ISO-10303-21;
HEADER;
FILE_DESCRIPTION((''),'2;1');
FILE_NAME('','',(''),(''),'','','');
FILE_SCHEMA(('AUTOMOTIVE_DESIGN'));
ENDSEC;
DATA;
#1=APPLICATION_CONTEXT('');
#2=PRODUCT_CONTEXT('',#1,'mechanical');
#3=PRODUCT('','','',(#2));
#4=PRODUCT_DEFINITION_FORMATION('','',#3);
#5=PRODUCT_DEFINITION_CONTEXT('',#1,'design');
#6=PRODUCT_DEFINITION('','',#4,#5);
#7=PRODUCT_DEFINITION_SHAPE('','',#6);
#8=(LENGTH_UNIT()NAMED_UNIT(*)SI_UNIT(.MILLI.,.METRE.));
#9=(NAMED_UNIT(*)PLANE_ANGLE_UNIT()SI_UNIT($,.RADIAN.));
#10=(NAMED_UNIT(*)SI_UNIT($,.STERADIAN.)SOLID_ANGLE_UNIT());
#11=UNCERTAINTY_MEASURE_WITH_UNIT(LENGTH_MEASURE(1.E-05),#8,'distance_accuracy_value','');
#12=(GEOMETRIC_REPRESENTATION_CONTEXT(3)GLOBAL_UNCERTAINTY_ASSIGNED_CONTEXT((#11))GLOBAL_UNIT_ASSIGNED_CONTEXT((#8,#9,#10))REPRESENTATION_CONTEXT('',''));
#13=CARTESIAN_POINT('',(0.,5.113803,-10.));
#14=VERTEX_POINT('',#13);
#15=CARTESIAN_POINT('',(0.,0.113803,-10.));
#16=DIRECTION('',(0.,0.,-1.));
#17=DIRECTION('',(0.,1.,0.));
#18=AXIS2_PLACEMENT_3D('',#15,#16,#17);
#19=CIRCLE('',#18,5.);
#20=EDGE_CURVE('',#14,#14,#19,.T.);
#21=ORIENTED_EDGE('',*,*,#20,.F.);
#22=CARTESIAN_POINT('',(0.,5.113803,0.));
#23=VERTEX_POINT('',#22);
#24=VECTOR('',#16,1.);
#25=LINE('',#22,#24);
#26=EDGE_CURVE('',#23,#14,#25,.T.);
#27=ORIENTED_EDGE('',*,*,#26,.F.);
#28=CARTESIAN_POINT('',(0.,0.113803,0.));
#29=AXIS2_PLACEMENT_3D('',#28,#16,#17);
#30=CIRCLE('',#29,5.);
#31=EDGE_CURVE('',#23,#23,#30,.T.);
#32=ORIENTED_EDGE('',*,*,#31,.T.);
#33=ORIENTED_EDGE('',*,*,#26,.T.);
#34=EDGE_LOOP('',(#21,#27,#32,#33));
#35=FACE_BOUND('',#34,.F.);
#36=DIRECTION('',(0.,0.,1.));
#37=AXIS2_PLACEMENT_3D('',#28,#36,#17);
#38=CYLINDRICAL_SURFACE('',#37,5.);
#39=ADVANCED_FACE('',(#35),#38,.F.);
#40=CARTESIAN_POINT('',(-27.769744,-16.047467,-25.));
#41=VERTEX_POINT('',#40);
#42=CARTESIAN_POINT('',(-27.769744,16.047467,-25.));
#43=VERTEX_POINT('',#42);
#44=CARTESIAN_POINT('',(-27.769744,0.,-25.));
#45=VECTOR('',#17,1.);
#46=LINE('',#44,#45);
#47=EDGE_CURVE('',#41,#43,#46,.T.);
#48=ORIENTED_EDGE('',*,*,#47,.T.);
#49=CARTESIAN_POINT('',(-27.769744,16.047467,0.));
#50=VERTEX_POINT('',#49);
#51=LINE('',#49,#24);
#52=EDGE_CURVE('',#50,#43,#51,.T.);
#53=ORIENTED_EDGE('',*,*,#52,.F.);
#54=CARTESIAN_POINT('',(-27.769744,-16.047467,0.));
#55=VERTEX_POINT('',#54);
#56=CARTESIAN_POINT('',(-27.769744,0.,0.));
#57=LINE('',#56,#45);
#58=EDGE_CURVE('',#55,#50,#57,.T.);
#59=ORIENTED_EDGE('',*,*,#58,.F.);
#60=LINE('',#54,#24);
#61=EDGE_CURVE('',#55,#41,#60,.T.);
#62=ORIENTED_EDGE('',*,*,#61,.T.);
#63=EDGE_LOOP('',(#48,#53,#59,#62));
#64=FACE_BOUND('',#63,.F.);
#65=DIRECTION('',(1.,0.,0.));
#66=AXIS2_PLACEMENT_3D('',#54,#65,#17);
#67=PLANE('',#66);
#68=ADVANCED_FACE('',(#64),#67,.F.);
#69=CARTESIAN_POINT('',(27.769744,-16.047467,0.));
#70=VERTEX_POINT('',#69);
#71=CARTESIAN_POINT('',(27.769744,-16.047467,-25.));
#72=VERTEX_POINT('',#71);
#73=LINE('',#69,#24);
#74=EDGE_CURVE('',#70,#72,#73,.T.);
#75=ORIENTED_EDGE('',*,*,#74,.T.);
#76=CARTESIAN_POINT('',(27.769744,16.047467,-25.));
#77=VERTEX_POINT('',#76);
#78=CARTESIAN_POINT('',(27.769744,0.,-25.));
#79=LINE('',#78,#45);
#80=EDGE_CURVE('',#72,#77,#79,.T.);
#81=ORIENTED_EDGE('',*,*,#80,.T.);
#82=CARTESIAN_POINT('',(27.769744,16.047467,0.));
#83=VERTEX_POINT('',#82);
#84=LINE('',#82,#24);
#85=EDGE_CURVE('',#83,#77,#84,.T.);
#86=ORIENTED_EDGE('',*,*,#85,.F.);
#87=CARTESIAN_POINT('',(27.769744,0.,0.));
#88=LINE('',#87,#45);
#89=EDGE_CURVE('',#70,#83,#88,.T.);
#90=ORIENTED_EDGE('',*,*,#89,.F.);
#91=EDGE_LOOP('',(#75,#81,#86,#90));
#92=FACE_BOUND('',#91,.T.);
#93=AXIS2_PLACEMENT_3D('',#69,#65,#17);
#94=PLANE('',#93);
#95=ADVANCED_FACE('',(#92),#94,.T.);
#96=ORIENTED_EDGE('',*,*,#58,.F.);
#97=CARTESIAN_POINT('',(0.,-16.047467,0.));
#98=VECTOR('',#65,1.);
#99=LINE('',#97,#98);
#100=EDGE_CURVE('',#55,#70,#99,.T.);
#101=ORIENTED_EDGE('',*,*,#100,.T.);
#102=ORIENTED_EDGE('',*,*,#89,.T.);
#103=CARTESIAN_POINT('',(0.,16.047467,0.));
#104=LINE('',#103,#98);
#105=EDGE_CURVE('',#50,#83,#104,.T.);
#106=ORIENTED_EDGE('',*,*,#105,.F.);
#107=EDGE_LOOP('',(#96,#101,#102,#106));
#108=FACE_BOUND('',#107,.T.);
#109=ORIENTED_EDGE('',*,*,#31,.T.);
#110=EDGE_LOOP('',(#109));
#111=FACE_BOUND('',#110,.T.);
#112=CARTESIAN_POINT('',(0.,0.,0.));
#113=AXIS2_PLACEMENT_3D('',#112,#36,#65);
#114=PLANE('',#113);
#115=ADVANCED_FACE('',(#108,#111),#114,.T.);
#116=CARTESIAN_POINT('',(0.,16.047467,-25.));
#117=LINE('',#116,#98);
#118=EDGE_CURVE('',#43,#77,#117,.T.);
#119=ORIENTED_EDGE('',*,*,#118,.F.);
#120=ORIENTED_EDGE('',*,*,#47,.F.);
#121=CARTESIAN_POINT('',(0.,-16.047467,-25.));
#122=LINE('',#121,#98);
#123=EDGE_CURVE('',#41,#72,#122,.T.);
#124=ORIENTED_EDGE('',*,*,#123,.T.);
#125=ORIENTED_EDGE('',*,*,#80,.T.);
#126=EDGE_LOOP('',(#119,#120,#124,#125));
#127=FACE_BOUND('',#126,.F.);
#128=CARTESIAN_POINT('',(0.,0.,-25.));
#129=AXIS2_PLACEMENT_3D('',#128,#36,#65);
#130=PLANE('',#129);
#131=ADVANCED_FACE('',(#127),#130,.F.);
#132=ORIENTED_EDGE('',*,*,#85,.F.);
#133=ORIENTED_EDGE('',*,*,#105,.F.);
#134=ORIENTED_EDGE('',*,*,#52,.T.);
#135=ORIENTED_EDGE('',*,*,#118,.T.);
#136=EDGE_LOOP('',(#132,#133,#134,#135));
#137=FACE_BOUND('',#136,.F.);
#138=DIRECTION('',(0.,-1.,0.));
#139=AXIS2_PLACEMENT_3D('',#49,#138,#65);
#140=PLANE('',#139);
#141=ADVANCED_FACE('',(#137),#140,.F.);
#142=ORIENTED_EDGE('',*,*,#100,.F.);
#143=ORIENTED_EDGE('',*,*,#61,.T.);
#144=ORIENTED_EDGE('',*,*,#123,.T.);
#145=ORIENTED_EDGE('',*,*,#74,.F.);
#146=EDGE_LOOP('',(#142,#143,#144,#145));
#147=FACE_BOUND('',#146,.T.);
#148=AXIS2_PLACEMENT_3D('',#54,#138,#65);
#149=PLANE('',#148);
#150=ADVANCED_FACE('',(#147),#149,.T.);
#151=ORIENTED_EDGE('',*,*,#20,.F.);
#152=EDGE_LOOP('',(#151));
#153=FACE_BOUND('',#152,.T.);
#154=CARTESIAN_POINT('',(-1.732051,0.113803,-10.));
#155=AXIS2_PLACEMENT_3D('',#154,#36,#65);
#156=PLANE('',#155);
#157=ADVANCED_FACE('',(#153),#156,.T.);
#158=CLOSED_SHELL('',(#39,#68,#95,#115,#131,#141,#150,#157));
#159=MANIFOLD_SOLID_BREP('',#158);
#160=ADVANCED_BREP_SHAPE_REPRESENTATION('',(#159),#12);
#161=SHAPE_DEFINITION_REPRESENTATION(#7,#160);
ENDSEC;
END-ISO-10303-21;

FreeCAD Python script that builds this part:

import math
import FreeCAD as App
import Part
import Sketcher
Q = App.Units.Quantity


def add_polygon(sketch, points):
    """Adds a closed chain of lines whose ends are joined by coincident constraints."""
    first, n = sketch.GeometryCount, len(points)
    for a, b in zip(points, points[1:] + points[:1]):
        sketch.addGeometry(Part.LineSegment(App.Vector(*a, 0), App.Vector(*b, 0)), False)
    for i in range(n):
        sketch.addConstraint(Sketcher.Constraint("Coincident", first + i, 2, first + (i + 1) % n, 1))

doc = App.newDocument("Part")
params = doc.addObject("Spreadsheet::Sheet", "Params")
for row, (alias, value) in enumerate([
    ("pad1_length", "25 mm"),
    ("sketch2_radius", "5 mm"),
    ("pocket1_length", "10 mm"),
    ("sketch3_radius", "5 mm"),
    ("pocket2_length", "10 mm"),
], start=1):
    params.set(f"A{row}", alias)
    params.set(f"B{row}", "=" + value)
    params.setAlias(f"B{row}", alias)

body = doc.addObject("PartDesign::Body", "Body")

# Sketch on XY plane
sketch1 = body.newObject("Sketcher::SketchObject", "Sketch")
sketch1.AttachmentSupport = (doc.getObject("XY_Plane"), [""])
sketch1.MapMode = "FlatFace"
add_polygon(sketch1, [(-28, 16), (-28, -16), (28, -16), (28, 16)])  # lines 0-3
sketch1.addConstraint([
    Sketcher.Constraint("Vertical", 0),
    Sketcher.Constraint("Horizontal", 1),
    Sketcher.Constraint("Vertical", 2),
    Sketcher.Constraint("Horizontal", 3),
    Sketcher.Constraint("Symmetric", 0, 2, 2, 2, -1, 1),
    Sketcher.Constraint("DistanceX", 1, 1, 1, 2, Q("55.539488 mm")),
    Sketcher.Constraint("DistanceY", 0, 2, 0, 1, Q("32.094934 mm")),
])
pad1 = body.newObject("PartDesign::Pad", "Pad")
pad1.Profile = sketch1
pad1.setExpression("Length", "Params.pad1_length")
pad1.Reversed = True

# Sketch on XY plane
sketch2 = body.newObject("Sketcher::SketchObject", "Sketch001")
sketch2.AttachmentSupport = (doc.getObject("XY_Plane"), [""])
sketch2.MapMode = "FlatFace"
sketch2.addGeometry([
    Part.ArcOfCircle(Part.Circle(App.Vector(0, 0, 0), App.Vector(0, 0, 1), 5), math.radians(90), math.radians(270)),
    Part.LineSegment(App.Vector(0, -5, 0), App.Vector(0, 5, 0)),
], False)
sketch2.addConstraint([
    Sketcher.Constraint("Coincident", 0, 1, 1, 2),
    Sketcher.Constraint("Coincident", 1, 1, 0, 2),
    Sketcher.Constraint("Vertical", 1),
    Sketcher.Constraint("PointOnObject", 0, 3, -2),
    Sketcher.Constraint("PointOnObject", 0, 1, -2),
    Sketcher.Constraint("Radius", 0, Q("5 mm")),
    Sketcher.Constraint("DistanceY", -1, 1, 0, 3, Q("0.113803 mm")),
])
sketch2.setExpression("Constraints[5]", "Params.sketch2_radius")
pocket1 = body.newObject("PartDesign::Pocket", "Pocket")
pocket1.Profile = sketch2
pocket1.setExpression("Length", "Params.pocket1_length")

# Sketch on XY plane
sketch3 = body.newObject("Sketcher::SketchObject", "Sketch002")
sketch3.AttachmentSupport = (doc.getObject("XY_Plane"), [""])
sketch3.MapMode = "FlatFace"
sketch3.addGeometry([
    Part.LineSegment(App.Vector(0, 5, 0), App.Vector(0, -5, 0)),
    Part.ArcOfCircle(Part.Circle(App.Vector(0, 0, 0), App.Vector(0, 0, 1), 5), math.radians(-90), math.radians(90)),
], False)
sketch3.addConstraint([
    Sketcher.Constraint("Coincident", 0, 1, 1, 2),
    Sketcher.Constraint("Coincident", 1, 1, 0, 2),
    Sketcher.Constraint("Vertical", 0),
    Sketcher.Constraint("PointOnObject", 1, 3, -2),
    Sketcher.Constraint("PointOnObject", 0, 1, -2),
    Sketcher.Constraint("Radius", 1, Q("5 mm")),
    Sketcher.Constraint("DistanceY", -1, 1, 1, 3, Q("0.113803 mm")),
])
sketch3.setExpression("Constraints[5]", "Params.sketch3_radius")
pocket2 = body.newObject("PartDesign::Pocket", "Pocket001")
pocket2.Profile = sketch3
pocket2.setExpression("Length", "Params.pocket2_length")

doc.recompute()
